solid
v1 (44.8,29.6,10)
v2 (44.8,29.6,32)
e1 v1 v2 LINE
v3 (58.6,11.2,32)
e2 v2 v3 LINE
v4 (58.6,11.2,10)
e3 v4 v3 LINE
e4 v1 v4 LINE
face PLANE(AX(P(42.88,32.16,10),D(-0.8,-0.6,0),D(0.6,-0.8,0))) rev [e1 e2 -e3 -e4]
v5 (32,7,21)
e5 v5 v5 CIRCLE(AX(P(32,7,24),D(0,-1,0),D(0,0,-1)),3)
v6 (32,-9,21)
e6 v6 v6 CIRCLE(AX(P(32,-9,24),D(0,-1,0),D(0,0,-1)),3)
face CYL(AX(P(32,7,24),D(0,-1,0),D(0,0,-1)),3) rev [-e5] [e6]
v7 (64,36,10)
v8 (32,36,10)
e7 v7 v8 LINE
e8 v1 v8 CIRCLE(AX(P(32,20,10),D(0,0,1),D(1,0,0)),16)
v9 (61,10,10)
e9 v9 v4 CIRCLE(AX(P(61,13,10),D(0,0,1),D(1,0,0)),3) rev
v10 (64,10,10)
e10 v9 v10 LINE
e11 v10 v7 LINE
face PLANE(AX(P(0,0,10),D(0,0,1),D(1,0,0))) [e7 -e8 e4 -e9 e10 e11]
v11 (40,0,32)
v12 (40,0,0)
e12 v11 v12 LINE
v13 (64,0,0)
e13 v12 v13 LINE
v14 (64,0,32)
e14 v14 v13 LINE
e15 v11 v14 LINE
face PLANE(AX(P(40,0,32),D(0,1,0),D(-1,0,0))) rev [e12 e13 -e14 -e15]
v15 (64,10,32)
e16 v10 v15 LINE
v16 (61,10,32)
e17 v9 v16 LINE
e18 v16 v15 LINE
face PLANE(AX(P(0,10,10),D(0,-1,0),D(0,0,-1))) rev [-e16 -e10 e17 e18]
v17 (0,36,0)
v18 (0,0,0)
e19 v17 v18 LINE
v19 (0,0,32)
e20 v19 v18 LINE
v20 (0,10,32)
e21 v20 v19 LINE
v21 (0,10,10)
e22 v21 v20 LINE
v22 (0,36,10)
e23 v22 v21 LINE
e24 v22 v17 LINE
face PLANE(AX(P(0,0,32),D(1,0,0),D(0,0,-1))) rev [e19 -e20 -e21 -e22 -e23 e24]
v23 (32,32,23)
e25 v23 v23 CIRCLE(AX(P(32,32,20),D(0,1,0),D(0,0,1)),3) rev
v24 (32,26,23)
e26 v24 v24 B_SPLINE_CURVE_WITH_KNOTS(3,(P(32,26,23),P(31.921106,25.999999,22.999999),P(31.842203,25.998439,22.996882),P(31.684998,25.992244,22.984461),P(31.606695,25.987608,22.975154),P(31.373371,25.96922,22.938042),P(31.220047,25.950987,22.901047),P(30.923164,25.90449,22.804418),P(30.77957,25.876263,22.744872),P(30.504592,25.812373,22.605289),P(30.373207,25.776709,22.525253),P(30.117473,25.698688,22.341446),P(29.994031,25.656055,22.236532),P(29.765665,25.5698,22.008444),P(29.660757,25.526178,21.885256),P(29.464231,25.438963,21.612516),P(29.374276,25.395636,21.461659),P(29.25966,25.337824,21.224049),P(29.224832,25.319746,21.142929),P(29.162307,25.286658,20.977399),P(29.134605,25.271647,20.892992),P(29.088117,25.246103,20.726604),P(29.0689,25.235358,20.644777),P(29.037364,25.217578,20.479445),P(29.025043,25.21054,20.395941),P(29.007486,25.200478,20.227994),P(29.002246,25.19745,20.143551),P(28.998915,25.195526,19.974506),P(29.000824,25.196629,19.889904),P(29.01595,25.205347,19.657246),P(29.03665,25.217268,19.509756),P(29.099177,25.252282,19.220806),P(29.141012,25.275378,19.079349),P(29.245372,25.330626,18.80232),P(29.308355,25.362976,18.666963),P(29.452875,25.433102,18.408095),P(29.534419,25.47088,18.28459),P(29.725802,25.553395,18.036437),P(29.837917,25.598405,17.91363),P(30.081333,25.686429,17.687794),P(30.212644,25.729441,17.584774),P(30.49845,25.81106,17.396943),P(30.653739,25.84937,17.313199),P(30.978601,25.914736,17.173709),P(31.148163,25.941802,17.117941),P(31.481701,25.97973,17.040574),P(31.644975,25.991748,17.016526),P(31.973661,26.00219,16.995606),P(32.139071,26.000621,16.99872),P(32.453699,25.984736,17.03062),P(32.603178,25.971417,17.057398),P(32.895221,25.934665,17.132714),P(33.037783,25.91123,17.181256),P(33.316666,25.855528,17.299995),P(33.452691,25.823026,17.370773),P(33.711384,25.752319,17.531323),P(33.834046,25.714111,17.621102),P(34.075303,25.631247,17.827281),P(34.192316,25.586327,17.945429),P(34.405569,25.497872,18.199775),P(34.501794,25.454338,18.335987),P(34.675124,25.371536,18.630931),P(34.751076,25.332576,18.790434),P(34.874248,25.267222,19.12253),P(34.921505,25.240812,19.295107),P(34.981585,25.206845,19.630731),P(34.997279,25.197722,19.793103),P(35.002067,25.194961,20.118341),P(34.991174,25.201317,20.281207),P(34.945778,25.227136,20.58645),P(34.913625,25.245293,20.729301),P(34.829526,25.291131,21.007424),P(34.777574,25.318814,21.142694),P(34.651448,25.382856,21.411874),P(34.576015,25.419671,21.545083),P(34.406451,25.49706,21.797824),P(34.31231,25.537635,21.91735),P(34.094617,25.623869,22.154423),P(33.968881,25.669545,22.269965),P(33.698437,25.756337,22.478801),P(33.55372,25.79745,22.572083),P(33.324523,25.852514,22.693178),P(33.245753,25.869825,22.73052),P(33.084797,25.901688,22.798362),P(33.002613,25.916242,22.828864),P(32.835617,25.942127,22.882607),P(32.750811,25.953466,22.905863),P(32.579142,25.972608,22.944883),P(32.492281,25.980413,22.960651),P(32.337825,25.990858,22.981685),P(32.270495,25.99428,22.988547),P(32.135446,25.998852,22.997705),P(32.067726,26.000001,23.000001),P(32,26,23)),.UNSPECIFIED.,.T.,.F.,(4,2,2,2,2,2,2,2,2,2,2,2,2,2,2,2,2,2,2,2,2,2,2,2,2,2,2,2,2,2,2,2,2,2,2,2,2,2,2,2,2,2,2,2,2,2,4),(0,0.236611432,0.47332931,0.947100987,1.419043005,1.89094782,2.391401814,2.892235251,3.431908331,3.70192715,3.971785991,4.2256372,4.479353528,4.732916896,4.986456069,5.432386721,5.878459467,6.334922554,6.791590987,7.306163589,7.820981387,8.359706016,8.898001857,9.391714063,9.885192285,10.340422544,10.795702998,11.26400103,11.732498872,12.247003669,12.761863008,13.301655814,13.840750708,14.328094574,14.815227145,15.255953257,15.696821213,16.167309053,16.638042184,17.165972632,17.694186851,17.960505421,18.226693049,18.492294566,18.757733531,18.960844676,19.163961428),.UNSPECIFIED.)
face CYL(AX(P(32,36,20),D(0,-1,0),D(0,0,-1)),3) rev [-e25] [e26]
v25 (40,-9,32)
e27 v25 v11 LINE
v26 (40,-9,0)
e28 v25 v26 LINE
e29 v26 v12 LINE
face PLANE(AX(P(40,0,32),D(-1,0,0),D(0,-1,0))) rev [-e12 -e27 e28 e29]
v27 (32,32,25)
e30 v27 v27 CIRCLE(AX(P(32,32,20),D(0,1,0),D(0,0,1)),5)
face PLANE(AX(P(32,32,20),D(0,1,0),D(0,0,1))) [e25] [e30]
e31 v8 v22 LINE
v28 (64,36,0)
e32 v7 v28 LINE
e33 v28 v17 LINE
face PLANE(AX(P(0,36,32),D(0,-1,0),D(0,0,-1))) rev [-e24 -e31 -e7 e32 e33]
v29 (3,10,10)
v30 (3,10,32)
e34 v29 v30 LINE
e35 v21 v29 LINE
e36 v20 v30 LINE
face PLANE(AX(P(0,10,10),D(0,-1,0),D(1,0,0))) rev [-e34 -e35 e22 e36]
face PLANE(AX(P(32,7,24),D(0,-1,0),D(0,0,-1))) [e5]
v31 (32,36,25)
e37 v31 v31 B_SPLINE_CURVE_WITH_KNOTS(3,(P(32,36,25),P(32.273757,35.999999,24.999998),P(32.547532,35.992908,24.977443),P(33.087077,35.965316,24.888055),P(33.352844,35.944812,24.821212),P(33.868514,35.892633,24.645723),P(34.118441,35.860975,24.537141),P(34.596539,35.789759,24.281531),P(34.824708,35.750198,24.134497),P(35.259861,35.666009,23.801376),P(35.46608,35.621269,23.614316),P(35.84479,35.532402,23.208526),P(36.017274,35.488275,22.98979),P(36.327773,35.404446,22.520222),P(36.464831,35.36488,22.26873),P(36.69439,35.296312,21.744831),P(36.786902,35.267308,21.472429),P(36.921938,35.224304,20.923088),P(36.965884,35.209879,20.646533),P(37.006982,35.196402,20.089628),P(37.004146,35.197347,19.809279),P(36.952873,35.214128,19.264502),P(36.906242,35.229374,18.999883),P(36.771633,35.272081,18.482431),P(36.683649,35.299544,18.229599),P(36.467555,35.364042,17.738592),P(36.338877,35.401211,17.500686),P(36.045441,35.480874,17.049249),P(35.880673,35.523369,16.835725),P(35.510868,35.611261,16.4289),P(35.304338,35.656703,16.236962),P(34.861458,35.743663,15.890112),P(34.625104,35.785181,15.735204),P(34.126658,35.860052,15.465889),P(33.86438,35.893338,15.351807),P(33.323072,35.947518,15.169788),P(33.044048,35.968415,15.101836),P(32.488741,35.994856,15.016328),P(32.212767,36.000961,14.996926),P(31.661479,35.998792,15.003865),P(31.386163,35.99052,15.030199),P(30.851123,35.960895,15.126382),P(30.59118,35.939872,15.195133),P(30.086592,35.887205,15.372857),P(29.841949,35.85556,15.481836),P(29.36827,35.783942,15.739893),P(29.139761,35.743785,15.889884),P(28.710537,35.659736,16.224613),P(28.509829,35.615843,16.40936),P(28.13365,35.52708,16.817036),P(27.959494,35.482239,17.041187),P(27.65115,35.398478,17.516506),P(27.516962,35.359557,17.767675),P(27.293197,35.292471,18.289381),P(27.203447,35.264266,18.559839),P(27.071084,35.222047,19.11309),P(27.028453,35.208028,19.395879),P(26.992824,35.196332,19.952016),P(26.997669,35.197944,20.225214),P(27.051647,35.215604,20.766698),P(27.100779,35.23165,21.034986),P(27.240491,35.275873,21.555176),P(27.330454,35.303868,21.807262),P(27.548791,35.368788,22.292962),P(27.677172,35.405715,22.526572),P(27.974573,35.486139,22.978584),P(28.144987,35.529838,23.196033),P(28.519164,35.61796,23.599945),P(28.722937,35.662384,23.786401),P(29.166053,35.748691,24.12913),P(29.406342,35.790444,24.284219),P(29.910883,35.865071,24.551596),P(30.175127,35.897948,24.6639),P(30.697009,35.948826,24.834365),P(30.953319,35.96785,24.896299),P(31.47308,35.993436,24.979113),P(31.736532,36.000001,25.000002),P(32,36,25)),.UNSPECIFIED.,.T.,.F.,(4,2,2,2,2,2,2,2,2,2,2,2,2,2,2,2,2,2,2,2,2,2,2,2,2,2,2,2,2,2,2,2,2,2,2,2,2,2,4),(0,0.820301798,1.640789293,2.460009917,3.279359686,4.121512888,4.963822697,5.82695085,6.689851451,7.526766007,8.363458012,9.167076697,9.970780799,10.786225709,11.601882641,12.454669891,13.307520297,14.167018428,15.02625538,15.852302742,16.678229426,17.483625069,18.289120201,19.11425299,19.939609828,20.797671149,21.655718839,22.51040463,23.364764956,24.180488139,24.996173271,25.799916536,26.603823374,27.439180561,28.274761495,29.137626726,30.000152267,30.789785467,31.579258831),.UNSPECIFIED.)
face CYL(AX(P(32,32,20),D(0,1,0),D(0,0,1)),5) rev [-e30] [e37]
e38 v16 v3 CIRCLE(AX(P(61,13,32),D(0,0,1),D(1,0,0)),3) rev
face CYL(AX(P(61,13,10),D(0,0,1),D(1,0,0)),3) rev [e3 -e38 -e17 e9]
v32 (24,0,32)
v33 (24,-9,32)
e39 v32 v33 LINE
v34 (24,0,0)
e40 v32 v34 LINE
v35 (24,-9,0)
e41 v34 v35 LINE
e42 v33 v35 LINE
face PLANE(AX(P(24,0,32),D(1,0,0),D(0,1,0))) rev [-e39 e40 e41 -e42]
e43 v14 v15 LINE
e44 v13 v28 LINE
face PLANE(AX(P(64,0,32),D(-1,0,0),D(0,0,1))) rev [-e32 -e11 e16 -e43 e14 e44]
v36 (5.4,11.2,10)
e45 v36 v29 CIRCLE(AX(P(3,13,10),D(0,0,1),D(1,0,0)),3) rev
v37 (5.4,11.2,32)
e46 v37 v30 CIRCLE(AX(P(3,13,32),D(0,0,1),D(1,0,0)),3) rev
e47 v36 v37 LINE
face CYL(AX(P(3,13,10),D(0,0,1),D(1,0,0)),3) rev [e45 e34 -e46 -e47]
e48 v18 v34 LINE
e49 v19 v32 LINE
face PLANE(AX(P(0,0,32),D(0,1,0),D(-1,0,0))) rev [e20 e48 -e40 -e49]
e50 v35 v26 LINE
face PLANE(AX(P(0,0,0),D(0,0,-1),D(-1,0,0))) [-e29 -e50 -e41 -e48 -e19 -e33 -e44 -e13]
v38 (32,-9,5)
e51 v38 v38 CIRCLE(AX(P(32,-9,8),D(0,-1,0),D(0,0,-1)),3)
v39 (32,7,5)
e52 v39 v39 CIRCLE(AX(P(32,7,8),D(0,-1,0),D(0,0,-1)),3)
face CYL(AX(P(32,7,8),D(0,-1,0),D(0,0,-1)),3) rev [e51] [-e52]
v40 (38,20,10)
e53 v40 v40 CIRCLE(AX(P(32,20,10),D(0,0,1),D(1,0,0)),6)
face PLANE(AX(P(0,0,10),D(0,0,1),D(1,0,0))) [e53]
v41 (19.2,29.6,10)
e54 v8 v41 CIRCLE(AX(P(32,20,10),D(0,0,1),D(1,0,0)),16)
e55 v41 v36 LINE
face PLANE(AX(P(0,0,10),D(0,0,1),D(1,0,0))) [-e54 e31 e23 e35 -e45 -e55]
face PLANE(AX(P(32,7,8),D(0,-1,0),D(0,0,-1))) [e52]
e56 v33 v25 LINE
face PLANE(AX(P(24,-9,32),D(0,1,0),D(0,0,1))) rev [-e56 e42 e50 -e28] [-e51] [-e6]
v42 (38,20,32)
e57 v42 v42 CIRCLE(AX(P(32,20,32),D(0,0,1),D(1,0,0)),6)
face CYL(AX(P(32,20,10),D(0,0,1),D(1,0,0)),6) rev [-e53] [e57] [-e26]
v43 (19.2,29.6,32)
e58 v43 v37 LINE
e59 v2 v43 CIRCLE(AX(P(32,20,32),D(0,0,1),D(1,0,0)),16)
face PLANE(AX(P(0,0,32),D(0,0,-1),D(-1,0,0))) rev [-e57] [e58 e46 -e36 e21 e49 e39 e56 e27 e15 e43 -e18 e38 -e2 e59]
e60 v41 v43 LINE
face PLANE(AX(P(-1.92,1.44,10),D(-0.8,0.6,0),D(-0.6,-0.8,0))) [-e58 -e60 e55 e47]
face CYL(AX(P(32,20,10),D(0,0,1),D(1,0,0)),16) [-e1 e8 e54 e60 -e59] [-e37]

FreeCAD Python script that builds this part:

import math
import FreeCAD as App
import Part
import Sketcher

doc = App.newDocument("Part")
body = doc.addObject("PartDesign::Body", "Body")

# Sketch on XY plane
sketch1 = body.newObject("Sketcher::SketchObject", "Sketch")
sketch1.AttachmentSupport = (doc.getObject("XY_Plane"), [""])
sketch1.MapMode = "FlatFace"
sketch1.addGeometry([
    Part.LineSegment(App.Vector(40, 0, 0), App.Vector(64, 0, 0)),  # 0
    Part.LineSegment(App.Vector(64, 0, 0), App.Vector(64, 36, 0)),  # 1
    Part.LineSegment(App.Vector(64, 36, 0), App.Vector(0, 36, 0)),  # 2
    Part.LineSegment(App.Vector(0, 36, 0), App.Vector(0, 0, 0)),  # 3
    Part.LineSegment(App.Vector(0, 0, 0), App.Vector(24, 0, 0)),  # 4
    Part.LineSegment(App.Vector(24, 0, 0), App.Vector(24, -9, 0)),  # 5
    Part.LineSegment(App.Vector(24, -9, 0), App.Vector(40, -9, 0)),  # 6
    Part.LineSegment(App.Vector(40, -9, 0), App.Vector(40, 0, 0)),  # 7
], False)
sketch1.addConstraint([
    Sketcher.Constraint("Coincident", 0, 2, 1, 1),
    Sketcher.Constraint("Coincident", 1, 2, 2, 1),
    Sketcher.Constraint("Coincident", 2, 2, 3, 1),
    Sketcher.Constraint("Coincident", 3, 2, 4, 1),
    Sketcher.Constraint("Coincident", 4, 2, 5, 1),
    Sketcher.Constraint("Coincident", 5, 2, 6, 1),
    Sketcher.Constraint("Coincident", 6, 2, 7, 1),
    Sketcher.Constraint("Coincident", 7, 2, 0, 1),
    Sketcher.Constraint("Horizontal", 0),
    Sketcher.Constraint("Vertical", 1),
    Sketcher.Constraint("Horizontal", 2),
    Sketcher.Constraint("Vertical", 3),
    Sketcher.Constraint("Horizontal", 4),
    Sketcher.Constraint("Vertical", 5),
    Sketcher.Constraint("Horizontal", 6),
    Sketcher.Constraint("Vertical", 7),
    Sketcher.Constraint("Coincident", 3, 2, -1, 1),
    Sketcher.Constraint("PointOnObject", 0, 2, -1),
    Sketcher.Constraint("Equal", 0, 4),
    Sketcher.Constraint("DistanceX", 0, 1, 0, 2, 24.0),
    Sketcher.Constraint("DistanceX", 2, 2, 2, 1, 64.0),
    Sketcher.Constraint("DistanceY", 1, 1, 1, 2, 36.0),
    Sketcher.Constraint("DistanceY", 5, 2, 5, 1, 9.0),
])
pad1 = body.newObject("PartDesign::Pad", "Pad")
pad1.Profile = sketch1
pad1.Length = 32

# Sketch on XY plane
sketch2 = body.newObject("Sketcher::SketchObject", "Sketch001")
sketch2.AttachmentSupport = (doc.getObject("XY_Plane"), [""])
sketch2.MapMode = "FlatFace"
sketch2.AttachmentOffset = App.Placement(App.Vector(0, 0, 32), App.Rotation())
sketch2.addGeometry([
    Part.LineSegment(App.Vector(0, 36, 0), App.Vector(0, 10, 0)),  # 0
    Part.LineSegment(App.Vector(0, 10, 0), App.Vector(3, 10, 0)),  # 1
    Part.ArcOfCircle(Part.Circle(App.Vector(3, 13, 0), App.Vector(0, 0, 1), 3), math.radians(-90), math.radians(-36.869898)),  # 2
    Part.LineSegment(App.Vector(5.4, 11.2, 0), App.Vector(19.2, 29.6, 0)),  # 3
    Part.ArcOfCircle(Part.Circle(App.Vector(32, 20, 0), App.Vector(0, 0, 1), 16), math.radians(90), math.radians(143.130102)),  # 4
    Part.LineSegment(App.Vector(32, 36, 0), App.Vector(0, 36, 0)),  # 5
    Part.LineSegment(App.Vector(64, 36, 0), App.Vector(32, 36, 0)),  # 6
    Part.ArcOfCircle(Part.Circle(App.Vector(32, 20, 0), App.Vector(0, 0, 1), 16), math.radians(36.869898), math.radians(90)),  # 7
    Part.LineSegment(App.Vector(44.8, 29.6, 0), App.Vector(58.6, 11.2, 0)),  # 8
    Part.ArcOfCircle(Part.Circle(App.Vector(61, 13, 0), App.Vector(0, 0, 1), 3), math.radians(-143.130102), math.radians(-90)),  # 9
    Part.LineSegment(App.Vector(61, 10, 0), App.Vector(64, 10, 0)),  # 10
    Part.LineSegment(App.Vector(64, 10, 0), App.Vector(64, 36, 0)),  # 11
    Part.Circle(App.Vector(32, 20, 0), App.Vector(0, 0, 1), 6),  # 12
], False)
sketch2.addConstraint([
    Sketcher.Constraint("Coincident", 0, 2, 1, 1),
    Sketcher.Constraint("Tangent", 1, 2, 2, 1),
    Sketcher.Constraint("Tangent", 2, 2, 3, 1),
    Sketcher.Constraint("Tangent", 3, 2, 4, 2),
    Sketcher.Constraint("Tangent", 4, 1, 5, 1),
    Sketcher.Constraint("Coincident", 5, 2, 0, 1),
    Sketcher.Constraint("Tangent", 6, 2, 7, 2),
    Sketcher.Constraint("Tangent", 7, 1, 8, 1),
    Sketcher.Constraint("Tangent", 8, 2, 9, 1),
    Sketcher.Constraint("Tangent", 9, 2, 10, 1),
    Sketcher.Constraint("Coincident", 10, 2, 11, 1),
    Sketcher.Constraint("Coincident", 11, 2, 6, 1),
    Sketcher.Constraint("Vertical", 0),
    Sketcher.Constraint("Horizontal", 1),
    Sketcher.Constraint("Horizontal", 5),
    Sketcher.Constraint("Horizontal", 6),
    Sketcher.Constraint("Horizontal", 10),
    Sketcher.Constraint("Vertical", 11),
    Sketcher.Constraint("Coincident", 7, 3, 4, 3),
    Sketcher.Constraint("Coincident", 12, 3, 4, 3),
    Sketcher.Constraint("Equal", 4, 7),
    Sketcher.Constraint("Equal", 2, 9),
    Sketcher.Constraint("PointOnObject", 0, 2, -2),
    Sketcher.Constraint("Horizontal", 2, 3, 9, 3),
    Sketcher.Constraint("Horizontal", 3, 2, 7, 1),
    Sketcher.Constraint("Equal", 5, 6),
    Sketcher.Constraint("Diameter", 12, 12.0),
    Sketcher.Constraint("Radius", 2, 3.0),
    Sketcher.Constraint("Radius", 4, 16.0),
    Sketcher.Constraint("DistanceX", 1, 1, 1, 2, 3.0),
    Sketcher.Constraint("DistanceX", 5, 2, 5, 1, 32.0),
    Sketcher.Constraint("DistanceY", 0, 2, 0, 1, 26.0),
    Sketcher.Constraint("DistanceY", -1, 1, 2, 3, 13.0),
])
pocket1 = body.newObject("PartDesign::Pocket", "Pocket")
pocket1.Profile = sketch2
pocket1.Length = 22

# Sketch on XZ plane
sketch3 = body.newObject("Sketcher::SketchObject", "Sketch002")
sketch3.AttachmentSupport = (doc.getObject("XZ_Plane"), [""])
sketch3.MapMode = "FlatFace"
sketch3.AttachmentOffset = App.Placement(App.Vector(0, 0, -36), App.Rotation())
sketch3.addGeometry(Part.Circle(App.Vector(32, 20, 0), App.Vector(0, 0, 1), 5), False)
sketch3.addConstraint([
    Sketcher.Constraint("Diameter", 0, 10.0),
    Sketcher.Constraint("DistanceX", -1, 1, 0, 3, 32.0),
    Sketcher.Constraint("DistanceY", -1, 1, 0, 3, 20.0),
])
pocket2 = body.newObject("PartDesign::Pocket", "Pocket001")
pocket2.Profile = sketch3
pocket2.Length = 4
pocket2.Reversed = True

# Sketch on XZ plane
sketch4 = body.newObject("Sketcher::SketchObject", "Sketch003")
sketch4.AttachmentSupport = (doc.getObject("XZ_Plane"), [""])
sketch4.MapMode = "FlatFace"
sketch4.AttachmentOffset = App.Placement(App.Vector(0, 0, -32), App.Rotation())
sketch4.addGeometry(Part.Circle(App.Vector(32, 20, 0), App.Vector(0, 0, 1), 3), False)
sketch4.addConstraint([
    Sketcher.Constraint("Diameter", 0, 6.0),
    Sketcher.Constraint("DistanceX", -1, 1, 0, 3, 32.0),
    Sketcher.Constraint("DistanceY", -1, 1, 0, 3, 20.0),
])
pocket3 = body.newObject("PartDesign::Pocket", "Pocket002")
pocket3.Profile = sketch4
pocket3.Type = "UpToFirst"
pocket3.Reversed = True

# Sketch on XZ plane
sketch5 = body.newObject("Sketcher::SketchObject", "Sketch004")
sketch5.AttachmentSupport = (doc.getObject("XZ_Plane"), [""])
sketch5.MapMode = "FlatFace"
sketch5.AttachmentOffset = App.Placement(App.Vector(0, 0, -32), App.Rotation())
sketch5.addGeometry(Part.Circle(App.Vector(32, 20, 0), App.Vector(0, 0, 1), 3), False)
sketch5.addConstraint([
    Sketcher.Constraint("Diameter", 0, 6.0),
    Sketcher.Constraint("DistanceX", -1, 1, 0, 3, 32.0),
    Sketcher.Constraint("DistanceY", -1, 1, 0, 3, 20.0),
])
pocket4 = body.newObject("PartDesign::Pocket", "Pocket003")
pocket4.Profile = sketch5
pocket4.Length = 5

# Sketch on XZ plane
sketch6 = body.newObject("Sketcher::SketchObject", "Sketch005")
sketch6.AttachmentSupport = (doc.getObject("XZ_Plane"), [""])
sketch6.MapMode = "FlatFace"
sketch6.AttachmentOffset = App.Placement(App.Vector(0, 0, 9), App.Rotation())
sketch6.addGeometry([
    Part.Circle(App.Vector(32, 24, 0), App.Vector(0, 0, 1), 3),
    Part.Circle(App.Vector(32, 8, 0), App.Vector(0, 0, 1), 3),
], False)
sketch6.addConstraint([
    Sketcher.Constraint("Equal", 0, 1),
    Sketcher.Constraint("Vertical", 0, 3, 1, 3),
    Sketcher.Constraint("Diameter", 0, 6.0),
    Sketcher.Constraint("DistanceX", -1, 1, 0, 3, 32.0),
    Sketcher.Constraint("DistanceY", -1, 1, 0, 3, 24.0),
    Sketcher.Constraint("DistanceY", -1, 1, 1, 3, 8.0),
])
pocket5 = body.newObject("PartDesign::Pocket", "Pocket004")
pocket5.Profile = sketch6
pocket5.Length = 16

doc.recompute()
